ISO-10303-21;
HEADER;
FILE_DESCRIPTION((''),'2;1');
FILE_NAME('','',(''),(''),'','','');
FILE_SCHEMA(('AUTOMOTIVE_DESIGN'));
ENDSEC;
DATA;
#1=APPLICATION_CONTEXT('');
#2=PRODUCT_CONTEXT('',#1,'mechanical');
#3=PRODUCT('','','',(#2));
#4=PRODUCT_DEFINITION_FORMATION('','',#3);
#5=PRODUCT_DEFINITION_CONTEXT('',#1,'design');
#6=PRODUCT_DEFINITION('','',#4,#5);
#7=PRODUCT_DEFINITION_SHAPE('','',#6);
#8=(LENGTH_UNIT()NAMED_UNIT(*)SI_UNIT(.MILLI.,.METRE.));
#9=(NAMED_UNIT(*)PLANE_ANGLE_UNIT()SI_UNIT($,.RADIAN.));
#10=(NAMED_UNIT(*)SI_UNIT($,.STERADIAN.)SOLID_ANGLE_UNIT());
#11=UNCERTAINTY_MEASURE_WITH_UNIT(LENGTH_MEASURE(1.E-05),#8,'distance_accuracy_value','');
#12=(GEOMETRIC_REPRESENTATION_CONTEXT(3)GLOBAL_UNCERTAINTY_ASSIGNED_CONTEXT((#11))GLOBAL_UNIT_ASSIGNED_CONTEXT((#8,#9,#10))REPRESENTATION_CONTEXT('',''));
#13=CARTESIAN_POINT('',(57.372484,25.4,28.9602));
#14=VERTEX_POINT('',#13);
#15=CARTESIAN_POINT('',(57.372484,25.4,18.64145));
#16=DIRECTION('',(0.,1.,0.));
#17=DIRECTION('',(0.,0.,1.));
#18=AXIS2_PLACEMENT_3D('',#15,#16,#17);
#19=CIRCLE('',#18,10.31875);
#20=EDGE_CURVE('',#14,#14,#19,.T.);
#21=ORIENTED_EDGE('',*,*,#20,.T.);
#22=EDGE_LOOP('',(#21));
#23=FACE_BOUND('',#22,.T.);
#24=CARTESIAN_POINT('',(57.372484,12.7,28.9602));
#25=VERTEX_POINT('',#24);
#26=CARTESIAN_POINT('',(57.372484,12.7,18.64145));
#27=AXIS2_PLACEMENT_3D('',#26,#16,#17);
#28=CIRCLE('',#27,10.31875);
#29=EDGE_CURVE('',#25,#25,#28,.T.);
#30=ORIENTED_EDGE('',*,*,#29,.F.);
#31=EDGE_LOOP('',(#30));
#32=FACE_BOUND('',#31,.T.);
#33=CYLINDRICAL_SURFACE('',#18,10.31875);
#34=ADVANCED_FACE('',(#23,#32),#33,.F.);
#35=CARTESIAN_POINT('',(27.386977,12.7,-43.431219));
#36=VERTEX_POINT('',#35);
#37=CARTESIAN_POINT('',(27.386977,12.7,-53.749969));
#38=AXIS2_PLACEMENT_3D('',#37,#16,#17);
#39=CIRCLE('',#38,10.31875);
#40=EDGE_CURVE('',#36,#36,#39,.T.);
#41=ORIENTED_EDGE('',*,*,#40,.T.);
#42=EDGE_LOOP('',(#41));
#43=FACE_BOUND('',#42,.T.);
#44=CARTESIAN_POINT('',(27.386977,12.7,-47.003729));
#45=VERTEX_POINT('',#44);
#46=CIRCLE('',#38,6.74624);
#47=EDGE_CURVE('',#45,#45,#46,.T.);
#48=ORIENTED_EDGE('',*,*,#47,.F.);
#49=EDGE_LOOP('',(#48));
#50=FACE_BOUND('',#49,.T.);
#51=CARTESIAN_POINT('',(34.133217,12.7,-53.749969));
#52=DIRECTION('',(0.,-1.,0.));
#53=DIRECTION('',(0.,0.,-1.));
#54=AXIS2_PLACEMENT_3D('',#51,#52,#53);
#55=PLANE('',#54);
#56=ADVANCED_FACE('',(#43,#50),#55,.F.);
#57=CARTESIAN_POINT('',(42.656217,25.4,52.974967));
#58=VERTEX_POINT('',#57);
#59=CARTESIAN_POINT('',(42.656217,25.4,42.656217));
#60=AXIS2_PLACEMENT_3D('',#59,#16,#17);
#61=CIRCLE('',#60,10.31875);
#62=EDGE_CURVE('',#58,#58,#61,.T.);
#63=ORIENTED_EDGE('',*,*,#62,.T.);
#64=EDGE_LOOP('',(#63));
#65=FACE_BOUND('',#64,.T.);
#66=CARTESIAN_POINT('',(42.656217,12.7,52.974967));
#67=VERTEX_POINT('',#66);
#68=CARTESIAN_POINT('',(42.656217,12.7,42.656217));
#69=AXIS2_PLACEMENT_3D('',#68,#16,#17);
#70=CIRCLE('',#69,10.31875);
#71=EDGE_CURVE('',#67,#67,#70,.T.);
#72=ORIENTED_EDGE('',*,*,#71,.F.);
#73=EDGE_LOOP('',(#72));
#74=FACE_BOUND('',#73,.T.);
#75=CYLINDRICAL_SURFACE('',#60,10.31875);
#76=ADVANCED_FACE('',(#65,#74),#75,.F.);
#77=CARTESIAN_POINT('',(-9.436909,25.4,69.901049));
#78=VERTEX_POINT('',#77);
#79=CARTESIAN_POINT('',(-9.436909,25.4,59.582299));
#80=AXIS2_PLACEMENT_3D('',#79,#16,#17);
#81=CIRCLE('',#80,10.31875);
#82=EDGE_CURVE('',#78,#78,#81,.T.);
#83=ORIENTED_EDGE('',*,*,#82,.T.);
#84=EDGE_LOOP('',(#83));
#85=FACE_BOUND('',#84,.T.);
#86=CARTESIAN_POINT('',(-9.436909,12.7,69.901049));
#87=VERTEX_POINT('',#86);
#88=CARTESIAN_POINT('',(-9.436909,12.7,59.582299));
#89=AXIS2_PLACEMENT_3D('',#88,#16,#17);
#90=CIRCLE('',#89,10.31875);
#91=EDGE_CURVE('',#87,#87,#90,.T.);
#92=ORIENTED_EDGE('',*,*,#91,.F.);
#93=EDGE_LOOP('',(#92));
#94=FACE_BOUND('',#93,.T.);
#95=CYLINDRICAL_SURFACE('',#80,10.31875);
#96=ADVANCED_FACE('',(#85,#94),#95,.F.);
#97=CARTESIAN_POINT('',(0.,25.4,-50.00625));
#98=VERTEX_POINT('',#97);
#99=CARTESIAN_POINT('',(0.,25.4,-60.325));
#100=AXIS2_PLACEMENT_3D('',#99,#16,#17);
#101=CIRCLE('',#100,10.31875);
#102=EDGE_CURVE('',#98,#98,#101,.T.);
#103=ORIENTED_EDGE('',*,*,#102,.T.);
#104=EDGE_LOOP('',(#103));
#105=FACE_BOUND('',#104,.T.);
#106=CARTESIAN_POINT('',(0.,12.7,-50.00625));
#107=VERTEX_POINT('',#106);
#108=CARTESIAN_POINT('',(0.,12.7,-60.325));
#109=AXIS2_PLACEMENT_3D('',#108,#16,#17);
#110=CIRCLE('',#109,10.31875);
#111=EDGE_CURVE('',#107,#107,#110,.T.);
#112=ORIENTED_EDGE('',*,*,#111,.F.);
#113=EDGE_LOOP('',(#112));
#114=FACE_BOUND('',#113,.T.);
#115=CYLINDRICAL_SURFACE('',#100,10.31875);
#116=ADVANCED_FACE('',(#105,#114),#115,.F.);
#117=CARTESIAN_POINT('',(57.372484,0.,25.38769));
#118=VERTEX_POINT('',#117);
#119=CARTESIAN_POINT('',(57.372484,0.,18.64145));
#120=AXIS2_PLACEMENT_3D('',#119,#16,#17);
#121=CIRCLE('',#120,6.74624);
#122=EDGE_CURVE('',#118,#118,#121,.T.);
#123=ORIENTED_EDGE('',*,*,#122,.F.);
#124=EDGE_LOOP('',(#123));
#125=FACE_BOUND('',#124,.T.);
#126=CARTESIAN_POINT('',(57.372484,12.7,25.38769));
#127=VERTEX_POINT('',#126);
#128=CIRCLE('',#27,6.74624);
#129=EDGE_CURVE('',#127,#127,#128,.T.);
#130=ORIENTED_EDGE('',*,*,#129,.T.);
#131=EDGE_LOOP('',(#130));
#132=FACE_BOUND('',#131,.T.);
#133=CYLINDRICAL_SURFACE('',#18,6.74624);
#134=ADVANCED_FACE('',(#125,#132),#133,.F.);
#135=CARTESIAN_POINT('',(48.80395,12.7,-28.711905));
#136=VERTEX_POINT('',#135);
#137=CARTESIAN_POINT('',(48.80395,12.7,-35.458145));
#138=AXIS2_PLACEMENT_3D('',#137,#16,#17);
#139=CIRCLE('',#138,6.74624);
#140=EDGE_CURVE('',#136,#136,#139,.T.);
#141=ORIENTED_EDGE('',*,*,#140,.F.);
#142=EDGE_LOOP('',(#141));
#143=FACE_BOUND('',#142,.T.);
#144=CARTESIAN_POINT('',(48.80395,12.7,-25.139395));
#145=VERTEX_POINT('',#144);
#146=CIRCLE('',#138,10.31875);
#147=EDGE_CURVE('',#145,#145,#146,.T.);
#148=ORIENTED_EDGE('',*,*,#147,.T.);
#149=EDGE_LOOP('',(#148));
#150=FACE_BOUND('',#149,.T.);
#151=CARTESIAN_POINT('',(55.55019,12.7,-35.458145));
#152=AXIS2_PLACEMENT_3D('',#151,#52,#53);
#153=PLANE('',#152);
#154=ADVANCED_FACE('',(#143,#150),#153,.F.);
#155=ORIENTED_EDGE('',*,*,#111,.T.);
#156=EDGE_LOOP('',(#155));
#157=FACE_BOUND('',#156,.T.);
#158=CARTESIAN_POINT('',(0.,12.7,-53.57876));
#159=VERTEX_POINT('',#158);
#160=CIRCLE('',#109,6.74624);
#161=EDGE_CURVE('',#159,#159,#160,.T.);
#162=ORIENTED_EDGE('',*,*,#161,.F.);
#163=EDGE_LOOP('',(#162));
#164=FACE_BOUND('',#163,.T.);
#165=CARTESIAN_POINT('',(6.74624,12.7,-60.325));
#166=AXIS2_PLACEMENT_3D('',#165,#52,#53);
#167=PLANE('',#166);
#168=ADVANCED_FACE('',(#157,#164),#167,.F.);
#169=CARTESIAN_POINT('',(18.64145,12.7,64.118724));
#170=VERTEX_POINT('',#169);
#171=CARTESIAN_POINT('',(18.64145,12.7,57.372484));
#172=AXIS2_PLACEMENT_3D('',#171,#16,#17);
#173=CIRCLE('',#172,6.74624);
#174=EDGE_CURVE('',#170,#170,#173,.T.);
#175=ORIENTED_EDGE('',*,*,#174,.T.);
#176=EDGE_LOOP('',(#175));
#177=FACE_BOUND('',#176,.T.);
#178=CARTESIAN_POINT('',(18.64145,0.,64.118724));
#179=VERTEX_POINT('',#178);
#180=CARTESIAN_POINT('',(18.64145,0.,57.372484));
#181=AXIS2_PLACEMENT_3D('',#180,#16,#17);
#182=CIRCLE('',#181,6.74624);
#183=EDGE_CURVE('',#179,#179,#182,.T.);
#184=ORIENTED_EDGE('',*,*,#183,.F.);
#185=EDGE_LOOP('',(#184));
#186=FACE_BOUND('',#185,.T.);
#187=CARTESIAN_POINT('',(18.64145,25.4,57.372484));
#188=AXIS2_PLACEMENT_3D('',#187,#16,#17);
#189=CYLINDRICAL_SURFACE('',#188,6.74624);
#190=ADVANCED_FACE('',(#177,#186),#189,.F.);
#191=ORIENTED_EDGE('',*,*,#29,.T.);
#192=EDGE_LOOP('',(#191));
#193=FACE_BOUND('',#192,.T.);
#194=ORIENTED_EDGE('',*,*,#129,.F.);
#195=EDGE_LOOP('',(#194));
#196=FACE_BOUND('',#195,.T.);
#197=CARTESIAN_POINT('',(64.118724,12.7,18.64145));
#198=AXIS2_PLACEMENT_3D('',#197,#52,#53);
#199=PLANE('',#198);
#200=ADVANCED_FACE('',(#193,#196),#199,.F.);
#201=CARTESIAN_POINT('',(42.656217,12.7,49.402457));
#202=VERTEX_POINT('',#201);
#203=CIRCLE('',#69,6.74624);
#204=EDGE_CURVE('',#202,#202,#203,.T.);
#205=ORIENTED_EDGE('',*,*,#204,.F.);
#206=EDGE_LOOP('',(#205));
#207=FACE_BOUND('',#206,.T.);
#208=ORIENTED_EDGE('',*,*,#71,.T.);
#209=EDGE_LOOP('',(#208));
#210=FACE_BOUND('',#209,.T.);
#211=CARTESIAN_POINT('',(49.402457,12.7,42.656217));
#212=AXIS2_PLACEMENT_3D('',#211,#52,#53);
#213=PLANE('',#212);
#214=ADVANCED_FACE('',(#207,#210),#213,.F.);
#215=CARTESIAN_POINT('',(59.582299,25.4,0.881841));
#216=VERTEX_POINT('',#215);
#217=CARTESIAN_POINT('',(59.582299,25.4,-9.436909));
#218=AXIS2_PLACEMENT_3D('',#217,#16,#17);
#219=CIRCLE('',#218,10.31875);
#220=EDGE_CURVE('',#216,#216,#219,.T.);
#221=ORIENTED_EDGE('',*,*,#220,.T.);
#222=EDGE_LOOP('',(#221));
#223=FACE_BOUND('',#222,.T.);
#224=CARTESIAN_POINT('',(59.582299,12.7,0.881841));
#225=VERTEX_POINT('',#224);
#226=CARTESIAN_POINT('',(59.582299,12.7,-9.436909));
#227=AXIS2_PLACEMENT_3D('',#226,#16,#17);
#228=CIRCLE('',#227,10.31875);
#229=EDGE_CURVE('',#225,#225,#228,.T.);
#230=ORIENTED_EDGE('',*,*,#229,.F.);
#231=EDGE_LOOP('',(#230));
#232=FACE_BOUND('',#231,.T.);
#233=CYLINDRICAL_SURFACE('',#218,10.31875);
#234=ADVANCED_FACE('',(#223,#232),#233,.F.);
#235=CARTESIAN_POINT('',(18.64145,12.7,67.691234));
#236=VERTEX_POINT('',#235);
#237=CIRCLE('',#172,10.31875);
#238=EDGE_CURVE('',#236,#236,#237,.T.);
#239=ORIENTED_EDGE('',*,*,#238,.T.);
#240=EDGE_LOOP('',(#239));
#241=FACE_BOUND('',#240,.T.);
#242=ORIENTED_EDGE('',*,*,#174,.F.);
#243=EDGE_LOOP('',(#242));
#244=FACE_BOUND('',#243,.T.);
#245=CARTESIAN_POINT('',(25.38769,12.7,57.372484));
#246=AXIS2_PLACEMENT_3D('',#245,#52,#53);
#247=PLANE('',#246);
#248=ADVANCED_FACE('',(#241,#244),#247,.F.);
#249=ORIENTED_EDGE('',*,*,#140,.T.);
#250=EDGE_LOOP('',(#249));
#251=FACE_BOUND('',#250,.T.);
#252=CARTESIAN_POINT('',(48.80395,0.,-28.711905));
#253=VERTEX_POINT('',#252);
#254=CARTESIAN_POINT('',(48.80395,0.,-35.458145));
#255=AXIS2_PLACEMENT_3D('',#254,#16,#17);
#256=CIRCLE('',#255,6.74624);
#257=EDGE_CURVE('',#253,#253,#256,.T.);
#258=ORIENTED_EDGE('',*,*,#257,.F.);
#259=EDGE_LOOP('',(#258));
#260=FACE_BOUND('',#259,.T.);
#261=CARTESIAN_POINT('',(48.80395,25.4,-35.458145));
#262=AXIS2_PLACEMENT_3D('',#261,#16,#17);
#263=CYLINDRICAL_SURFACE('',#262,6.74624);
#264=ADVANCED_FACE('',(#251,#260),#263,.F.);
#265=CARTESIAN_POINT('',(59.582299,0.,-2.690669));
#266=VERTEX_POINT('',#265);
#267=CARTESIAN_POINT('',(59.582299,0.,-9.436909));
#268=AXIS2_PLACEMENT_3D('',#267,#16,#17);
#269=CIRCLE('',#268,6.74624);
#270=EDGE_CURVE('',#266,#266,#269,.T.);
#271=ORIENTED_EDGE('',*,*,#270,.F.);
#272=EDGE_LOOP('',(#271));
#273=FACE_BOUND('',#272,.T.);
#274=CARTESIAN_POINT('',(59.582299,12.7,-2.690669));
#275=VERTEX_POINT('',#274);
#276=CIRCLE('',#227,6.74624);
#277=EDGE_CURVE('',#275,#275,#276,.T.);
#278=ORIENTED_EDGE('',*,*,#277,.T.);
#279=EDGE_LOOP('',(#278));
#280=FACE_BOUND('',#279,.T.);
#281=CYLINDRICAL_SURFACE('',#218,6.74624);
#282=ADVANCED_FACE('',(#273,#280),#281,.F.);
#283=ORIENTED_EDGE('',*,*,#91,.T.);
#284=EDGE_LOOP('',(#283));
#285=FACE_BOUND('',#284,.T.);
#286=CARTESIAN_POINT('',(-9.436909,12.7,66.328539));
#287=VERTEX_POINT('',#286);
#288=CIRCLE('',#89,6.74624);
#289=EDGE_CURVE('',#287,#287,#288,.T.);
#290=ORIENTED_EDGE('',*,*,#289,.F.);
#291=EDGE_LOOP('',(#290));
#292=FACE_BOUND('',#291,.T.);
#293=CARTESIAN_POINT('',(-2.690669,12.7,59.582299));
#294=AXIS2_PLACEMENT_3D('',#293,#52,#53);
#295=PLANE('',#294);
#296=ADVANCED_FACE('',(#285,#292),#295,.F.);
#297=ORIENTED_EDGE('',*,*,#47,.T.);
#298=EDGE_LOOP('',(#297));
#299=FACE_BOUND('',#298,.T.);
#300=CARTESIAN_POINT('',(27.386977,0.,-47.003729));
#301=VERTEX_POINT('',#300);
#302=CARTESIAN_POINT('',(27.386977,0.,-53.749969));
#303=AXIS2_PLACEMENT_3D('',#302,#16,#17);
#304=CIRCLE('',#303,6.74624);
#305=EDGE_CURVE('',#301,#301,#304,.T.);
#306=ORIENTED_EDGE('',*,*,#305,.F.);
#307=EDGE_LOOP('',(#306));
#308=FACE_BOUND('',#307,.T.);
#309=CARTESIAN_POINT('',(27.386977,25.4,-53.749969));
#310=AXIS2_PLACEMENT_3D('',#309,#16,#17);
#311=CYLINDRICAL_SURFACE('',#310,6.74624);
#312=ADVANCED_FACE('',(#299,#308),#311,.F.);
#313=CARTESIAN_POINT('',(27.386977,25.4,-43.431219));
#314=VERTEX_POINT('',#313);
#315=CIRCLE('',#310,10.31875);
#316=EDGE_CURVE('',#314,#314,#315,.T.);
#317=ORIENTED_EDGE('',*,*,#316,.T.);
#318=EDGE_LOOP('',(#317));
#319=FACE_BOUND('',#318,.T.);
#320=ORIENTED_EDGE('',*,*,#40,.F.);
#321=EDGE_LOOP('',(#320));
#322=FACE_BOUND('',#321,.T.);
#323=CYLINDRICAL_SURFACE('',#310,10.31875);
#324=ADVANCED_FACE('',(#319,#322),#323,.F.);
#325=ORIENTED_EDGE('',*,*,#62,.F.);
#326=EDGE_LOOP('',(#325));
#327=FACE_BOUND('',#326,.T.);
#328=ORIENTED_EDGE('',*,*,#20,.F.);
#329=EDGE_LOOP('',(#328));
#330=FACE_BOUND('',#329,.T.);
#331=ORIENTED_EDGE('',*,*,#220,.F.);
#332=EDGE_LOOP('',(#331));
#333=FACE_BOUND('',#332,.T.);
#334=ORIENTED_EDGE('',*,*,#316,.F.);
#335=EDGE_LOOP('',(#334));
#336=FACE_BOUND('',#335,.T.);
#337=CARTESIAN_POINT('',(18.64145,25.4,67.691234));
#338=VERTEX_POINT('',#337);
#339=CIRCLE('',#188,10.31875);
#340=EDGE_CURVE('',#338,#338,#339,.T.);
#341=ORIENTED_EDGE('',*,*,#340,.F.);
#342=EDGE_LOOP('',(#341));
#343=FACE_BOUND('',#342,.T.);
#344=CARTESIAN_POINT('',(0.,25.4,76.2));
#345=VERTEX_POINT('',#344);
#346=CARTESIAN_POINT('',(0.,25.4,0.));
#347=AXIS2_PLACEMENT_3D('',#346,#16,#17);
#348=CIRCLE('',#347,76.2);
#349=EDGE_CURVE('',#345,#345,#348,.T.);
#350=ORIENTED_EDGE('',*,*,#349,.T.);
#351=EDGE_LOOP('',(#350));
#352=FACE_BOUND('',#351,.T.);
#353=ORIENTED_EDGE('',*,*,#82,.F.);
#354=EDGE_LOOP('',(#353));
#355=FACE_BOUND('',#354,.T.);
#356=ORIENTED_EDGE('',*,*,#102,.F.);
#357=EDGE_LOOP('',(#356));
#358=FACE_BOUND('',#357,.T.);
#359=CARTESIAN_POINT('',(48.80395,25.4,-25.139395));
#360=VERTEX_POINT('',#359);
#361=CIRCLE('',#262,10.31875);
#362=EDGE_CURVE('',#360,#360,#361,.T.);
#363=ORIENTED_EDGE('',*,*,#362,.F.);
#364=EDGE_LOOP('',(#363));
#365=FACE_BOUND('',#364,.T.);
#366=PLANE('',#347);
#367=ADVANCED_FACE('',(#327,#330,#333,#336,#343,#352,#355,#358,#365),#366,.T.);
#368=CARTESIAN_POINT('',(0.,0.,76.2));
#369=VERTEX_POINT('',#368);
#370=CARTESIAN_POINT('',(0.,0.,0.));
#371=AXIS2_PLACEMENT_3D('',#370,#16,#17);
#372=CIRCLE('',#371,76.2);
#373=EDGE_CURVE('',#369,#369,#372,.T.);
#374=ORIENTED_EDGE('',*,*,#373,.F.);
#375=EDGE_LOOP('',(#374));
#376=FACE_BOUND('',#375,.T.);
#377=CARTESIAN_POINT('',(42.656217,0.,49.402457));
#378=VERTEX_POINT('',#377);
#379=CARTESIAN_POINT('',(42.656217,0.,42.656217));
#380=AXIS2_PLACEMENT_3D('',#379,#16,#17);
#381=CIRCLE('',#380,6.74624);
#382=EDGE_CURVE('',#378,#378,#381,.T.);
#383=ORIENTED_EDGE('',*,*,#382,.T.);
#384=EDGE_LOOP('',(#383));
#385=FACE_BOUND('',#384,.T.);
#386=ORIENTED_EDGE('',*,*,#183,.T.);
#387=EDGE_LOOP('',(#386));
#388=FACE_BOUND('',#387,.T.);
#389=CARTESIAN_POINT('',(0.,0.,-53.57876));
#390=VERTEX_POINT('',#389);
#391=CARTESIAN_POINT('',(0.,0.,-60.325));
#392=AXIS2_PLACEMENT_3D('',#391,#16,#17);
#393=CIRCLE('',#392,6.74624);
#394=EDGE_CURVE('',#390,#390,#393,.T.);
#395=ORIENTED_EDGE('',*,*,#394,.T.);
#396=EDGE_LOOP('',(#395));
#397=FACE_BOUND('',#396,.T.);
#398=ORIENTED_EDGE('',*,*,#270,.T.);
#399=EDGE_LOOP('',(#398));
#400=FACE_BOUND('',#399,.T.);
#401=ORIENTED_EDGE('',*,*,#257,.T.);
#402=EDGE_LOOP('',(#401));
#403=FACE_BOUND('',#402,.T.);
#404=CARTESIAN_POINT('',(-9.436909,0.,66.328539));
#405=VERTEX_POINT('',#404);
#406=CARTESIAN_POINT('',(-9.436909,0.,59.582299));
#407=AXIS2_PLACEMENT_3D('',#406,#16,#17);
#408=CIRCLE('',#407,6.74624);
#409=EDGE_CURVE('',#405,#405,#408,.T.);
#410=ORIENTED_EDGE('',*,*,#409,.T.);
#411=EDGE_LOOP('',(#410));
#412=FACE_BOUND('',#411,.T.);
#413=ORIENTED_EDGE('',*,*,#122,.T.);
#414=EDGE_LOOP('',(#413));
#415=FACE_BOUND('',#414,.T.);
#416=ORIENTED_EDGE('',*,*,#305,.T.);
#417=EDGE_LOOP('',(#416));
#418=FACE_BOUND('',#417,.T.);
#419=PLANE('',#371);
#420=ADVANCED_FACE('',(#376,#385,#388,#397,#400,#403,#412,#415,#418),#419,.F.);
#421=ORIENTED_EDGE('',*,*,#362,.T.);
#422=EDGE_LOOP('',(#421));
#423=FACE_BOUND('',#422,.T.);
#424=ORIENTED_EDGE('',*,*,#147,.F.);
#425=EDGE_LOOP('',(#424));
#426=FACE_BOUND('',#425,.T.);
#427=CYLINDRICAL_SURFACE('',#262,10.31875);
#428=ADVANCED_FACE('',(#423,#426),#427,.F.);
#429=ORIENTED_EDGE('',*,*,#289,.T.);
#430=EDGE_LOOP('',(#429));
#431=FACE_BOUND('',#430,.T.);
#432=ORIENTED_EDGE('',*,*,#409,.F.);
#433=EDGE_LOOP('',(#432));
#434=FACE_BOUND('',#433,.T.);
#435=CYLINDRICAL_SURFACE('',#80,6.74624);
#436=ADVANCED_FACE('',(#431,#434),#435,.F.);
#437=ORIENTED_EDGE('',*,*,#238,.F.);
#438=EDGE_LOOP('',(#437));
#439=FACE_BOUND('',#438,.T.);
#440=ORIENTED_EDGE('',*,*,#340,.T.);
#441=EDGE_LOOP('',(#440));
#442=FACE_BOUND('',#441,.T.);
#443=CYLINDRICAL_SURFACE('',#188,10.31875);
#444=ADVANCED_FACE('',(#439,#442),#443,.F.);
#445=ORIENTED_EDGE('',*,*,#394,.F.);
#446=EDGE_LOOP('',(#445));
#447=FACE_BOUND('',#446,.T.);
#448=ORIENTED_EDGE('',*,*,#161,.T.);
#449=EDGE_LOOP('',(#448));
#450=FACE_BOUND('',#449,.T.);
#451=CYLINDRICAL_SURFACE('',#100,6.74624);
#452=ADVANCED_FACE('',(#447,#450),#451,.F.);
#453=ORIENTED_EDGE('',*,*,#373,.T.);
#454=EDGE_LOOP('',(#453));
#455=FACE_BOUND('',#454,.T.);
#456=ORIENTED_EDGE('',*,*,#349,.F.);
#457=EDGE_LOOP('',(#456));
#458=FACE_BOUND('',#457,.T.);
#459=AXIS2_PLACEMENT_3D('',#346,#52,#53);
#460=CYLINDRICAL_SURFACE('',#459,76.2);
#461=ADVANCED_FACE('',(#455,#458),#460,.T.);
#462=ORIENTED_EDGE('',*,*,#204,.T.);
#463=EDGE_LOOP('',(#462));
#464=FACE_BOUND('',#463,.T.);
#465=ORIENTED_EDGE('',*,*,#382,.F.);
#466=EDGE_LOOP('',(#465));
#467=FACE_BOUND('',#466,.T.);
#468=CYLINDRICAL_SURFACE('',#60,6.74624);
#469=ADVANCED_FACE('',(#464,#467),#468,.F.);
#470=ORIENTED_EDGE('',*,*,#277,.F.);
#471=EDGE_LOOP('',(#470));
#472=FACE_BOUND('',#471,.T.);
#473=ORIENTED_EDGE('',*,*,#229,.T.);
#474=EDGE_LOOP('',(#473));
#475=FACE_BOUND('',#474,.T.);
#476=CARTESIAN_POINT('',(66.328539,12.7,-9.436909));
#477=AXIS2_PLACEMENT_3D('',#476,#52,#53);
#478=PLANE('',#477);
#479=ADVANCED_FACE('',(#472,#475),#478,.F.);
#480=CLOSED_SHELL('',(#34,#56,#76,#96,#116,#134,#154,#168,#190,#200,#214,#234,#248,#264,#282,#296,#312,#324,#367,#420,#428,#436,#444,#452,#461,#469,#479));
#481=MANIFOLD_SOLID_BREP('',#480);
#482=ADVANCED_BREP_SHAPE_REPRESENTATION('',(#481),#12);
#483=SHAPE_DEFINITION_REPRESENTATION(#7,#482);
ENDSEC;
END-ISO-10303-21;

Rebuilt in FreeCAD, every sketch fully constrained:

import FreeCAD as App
import Part
import Sketcher
Q = App.Units.Quantity

doc = App.newDocument("Part")
body = doc.addObject("PartDesign::Body", "Body")

sketch1 = body.newObject("Sketcher::SketchObject", "Sketch")
sketch1.AttachmentSupport = (doc.getObject("XZ_Plane"), [""])
sketch1.MapMode = "FlatFace"
sketch1.addGeometry(Part.Circle(App.Vector(0, 0, 0), App.Vector(0, 0, 1), 76.2), False)
sketch1.addConstraint(Sketcher.Constraint("Coincident", 0, 3, -1, 1))
sketch1.addConstraint(Sketcher.Constraint("Diameter", 0, Q("6 in")))
pad1 = body.newObject("PartDesign::Pad", "Pad")
pad1.Profile = sketch1
pad1.Length = Q("1 in")
pad1.Reversed = True

sketch2 = body.newObject("Sketcher::SketchObject", "Sketch001")
sketch2.AttachmentSupport = (doc.getObject("XZ_Plane"), [""])
sketch2.MapMode = "FlatFace"
sketch2.AttachmentOffset = App.Placement(App.Vector(0, 0, -1 * 25.4), App.Rotation())
sketch2.addGeometry(Part.Circle(App.Vector(0, -60.325, 0), App.Vector(0, 0, 1), 6.74624), False)
sketch2.addConstraint(Sketcher.Constraint("PointOnObject", 0, 3, -2))
sketch2.addConstraint(Sketcher.Constraint("Diameter", 0, Q("0.5312 in")))
sketch2.addConstraint(Sketcher.Constraint("DistanceY", 0, 3, -1, 1, Q("2.375 in")))
doc.recompute()
hole = body.newObject("PartDesign::Hole", "Hole")
hole.Profile = sketch2
hole.ThreadType = "None"
hole.Diameter = Q("0.5312 in")
hole.DepthType = "ThroughAll"
hole.HoleCutType = "Counterbore"
hole.HoleCutDiameter = Q("0.8125 in")
hole.HoleCutDepth = Q("0.5 in")
hole.Reversed = True
doc.recompute()

polarpattern = body.newObject("PartDesign::PolarPattern", "PolarPattern")
polarpattern.Originals = [hole]
polarpattern.Axis = (doc.getObject("Y_Axis"), [""])
polarpattern.Angle = 189
polarpattern.Occurrences = 8
polarpattern.Reversed = True
body.Tip = polarpattern

doc.recompute()
